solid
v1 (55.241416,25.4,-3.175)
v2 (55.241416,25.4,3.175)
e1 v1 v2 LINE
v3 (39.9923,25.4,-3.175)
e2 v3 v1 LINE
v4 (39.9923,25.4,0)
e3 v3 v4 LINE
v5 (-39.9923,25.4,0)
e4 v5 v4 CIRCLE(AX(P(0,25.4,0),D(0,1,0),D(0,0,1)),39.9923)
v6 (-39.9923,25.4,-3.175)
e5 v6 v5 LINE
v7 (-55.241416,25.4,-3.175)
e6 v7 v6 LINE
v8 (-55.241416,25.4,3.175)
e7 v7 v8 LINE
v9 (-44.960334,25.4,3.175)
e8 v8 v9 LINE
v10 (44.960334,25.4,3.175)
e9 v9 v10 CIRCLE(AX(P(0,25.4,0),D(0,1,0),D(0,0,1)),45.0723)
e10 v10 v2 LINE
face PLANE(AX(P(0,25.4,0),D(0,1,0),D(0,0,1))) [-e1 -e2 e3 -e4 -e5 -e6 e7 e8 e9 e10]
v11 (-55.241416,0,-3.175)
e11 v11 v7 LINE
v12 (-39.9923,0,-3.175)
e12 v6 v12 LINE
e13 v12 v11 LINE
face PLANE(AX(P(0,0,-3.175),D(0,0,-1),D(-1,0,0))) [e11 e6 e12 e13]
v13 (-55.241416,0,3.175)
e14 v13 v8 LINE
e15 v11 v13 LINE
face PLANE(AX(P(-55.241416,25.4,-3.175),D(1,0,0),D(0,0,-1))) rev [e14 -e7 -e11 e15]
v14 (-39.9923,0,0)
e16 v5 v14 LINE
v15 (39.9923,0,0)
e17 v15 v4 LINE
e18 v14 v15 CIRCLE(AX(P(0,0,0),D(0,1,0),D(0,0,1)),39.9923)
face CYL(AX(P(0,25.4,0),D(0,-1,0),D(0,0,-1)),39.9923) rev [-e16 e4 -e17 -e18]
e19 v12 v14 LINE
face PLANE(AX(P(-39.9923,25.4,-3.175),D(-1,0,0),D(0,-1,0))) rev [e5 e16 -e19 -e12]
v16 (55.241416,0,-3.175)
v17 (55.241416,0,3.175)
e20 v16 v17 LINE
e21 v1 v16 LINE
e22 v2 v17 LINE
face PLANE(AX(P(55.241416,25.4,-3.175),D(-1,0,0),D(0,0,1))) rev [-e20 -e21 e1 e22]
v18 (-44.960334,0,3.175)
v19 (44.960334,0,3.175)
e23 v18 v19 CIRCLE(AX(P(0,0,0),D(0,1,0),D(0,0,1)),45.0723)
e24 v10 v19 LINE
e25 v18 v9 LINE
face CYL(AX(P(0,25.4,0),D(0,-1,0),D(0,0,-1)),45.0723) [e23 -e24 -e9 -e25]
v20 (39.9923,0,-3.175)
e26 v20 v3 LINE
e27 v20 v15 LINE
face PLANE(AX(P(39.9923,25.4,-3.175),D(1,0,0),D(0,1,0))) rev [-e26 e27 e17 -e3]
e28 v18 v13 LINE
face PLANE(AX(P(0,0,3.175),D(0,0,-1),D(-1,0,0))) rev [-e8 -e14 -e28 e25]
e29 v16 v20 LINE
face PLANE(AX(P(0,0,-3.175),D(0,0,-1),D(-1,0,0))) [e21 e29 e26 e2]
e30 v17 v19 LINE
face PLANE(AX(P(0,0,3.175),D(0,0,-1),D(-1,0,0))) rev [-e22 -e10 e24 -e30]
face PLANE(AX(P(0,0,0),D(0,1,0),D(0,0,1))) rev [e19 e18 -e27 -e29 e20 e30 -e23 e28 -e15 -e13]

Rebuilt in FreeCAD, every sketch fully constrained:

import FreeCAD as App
import Part
import Sketcher

V = App.Vector
Q = App.Units.Quantity

doc = App.newDocument("Part")
params = doc.addObject("Spreadsheet::Sheet", "Params")
for row, (alias, value) in enumerate([
    ("sketch1_diameter", "3.549 in"),
    ("sketch1_diameter2", "3.149 in"),
    ("pad1_length", "1 in"),
    ("sketch2_height", "1 in"),
    ("sketch2_width", "3.549 in"),
    ("sketch3_height", "1 in"),
    ("pad2_length", "0.25 in"),
], start=1):
    params.set(f"A{row}", alias)
    params.set(f"B{row}", "=" + value)
    params.setAlias(f"B{row}", alias)

body = doc.addObject("PartDesign::Body", "Body")

sketch1 = body.newObject("Sketcher::SketchObject", "Sketch")
sketch1.AttachmentSupport = (doc.getObject("XZ_Plane"), [""])
sketch1.MapMode = "FlatFace"
sketch1.addGeometry([
    Part.Circle(V(0, 0, 0), V(0, 0, 1), 45.0723),
    Part.Circle(V(0, 0, 0), V(0, 0, 1), 39.9923),
], False)
sketch1.addConstraint([
    Sketcher.Constraint("Coincident", 0, 3, -1, 1),
    Sketcher.Constraint("Coincident", 1, 3, -1, 1),
    Sketcher.Constraint("Diameter", 0, Q("3.549 in")),
    Sketcher.Constraint("Diameter", 1, Q("3.149 in")),
])
sketch1.setExpression("Constraints[2]", "Params.sketch1_diameter")
sketch1.setExpression("Constraints[3]", "Params.sketch1_diameter2")
pad1 = body.newObject("PartDesign::Pad", "Pad")
pad1.Profile = sketch1
pad1.setExpression("Length", "Params.pad1_length")
pad1.Reversed = True

sketch2 = body.newObject("Sketcher::SketchObject", "Sketch001")
sketch2.AttachmentSupport = (doc.getObject("XY_Plane"), [""])
sketch2.MapMode = "FlatFace"
sketch2.addGeometry([
    Part.LineSegment(V(-45.0723, 25.4, 0), V(-45.0723, 0, 0)),
    Part.LineSegment(V(-45.0723, 0, 0), V(45.0723, 0, 0)),
    Part.LineSegment(V(45.0723, 0, 0), V(45.0723, 25.4, 0)),
    Part.LineSegment(V(45.0723, 25.4, 0), V(-45.0723, 25.4, 0)),
], False)
sketch2.addConstraint([
    Sketcher.Constraint("Coincident", 0, 2, 1, 1),
    Sketcher.Constraint("Coincident", 1, 2, 2, 1),
    Sketcher.Constraint("Coincident", 2, 2, 3, 1),
    Sketcher.Constraint("Coincident", 3, 2, 0, 1),
    Sketcher.Constraint("Vertical", 0),
    Sketcher.Constraint("Horizontal", 1),
    Sketcher.Constraint("Vertical", 2),
    Sketcher.Constraint("Horizontal", 3),
    Sketcher.Constraint("Symmetric", 0, 2, 1, 2, -1, 1),
    Sketcher.Constraint("DistanceY", 0, 2, 0, 1, Q("1 in")),
    Sketcher.Constraint("DistanceX", 1, 1, 1, 2, Q("3.549 in")),
])
sketch2.setExpression("Constraints[9]", "Params.sketch2_height")
sketch2.setExpression("Constraints[10]", "Params.sketch2_width")
pocket1 = body.newObject("PartDesign::Pocket", "Pocket")
pocket1.Profile = sketch2
pocket1.Type = "ThroughAll"

sketch3 = body.newObject("Sketcher::SketchObject", "Sketch002")
sketch3.AttachmentSupport = (doc.getObject("XY_Plane"), [""])
sketch3.MapMode = "FlatFace"
sketch3.addGeometry([
    Part.LineSegment(V(39.9923, 25.4, 0), V(55.241416, 25.4, 0)),
    Part.LineSegment(V(55.241416, 25.4, 0), V(55.241416, 0, 0)),
    Part.LineSegment(V(55.241416, 0, 0), V(39.9923, 0, 0)),
    Part.LineSegment(V(39.9923, 0, 0), V(39.9923, 25.4, 0)),
    Part.LineSegment(V(-55.241416, 25.4, 0), V(-39.9923, 25.4, 0)),
    Part.LineSegment(V(-39.9923, 25.4, 0), V(-39.9923, 0, 0)),
    Part.LineSegment(V(-39.9923, 0, 0), V(-55.241416, 0, 0)),
    Part.LineSegment(V(-55.241416, 0, 0), V(-55.241416, 25.4, 0)),
], False)
sketch3.addConstraint([
    Sketcher.Constraint("Coincident", 0, 2, 1, 1),
    Sketcher.Constraint("Coincident", 1, 2, 2, 1),
    Sketcher.Constraint("Coincident", 2, 2, 3, 1),
    Sketcher.Constraint("Coincident", 3, 2, 0, 1),
    Sketcher.Constraint("Coincident", 4, 2, 5, 1),
    Sketcher.Constraint("Coincident", 5, 2, 6, 1),
    Sketcher.Constraint("Coincident", 6, 2, 7, 1),
    Sketcher.Constraint("Coincident", 7, 2, 4, 1),
    Sketcher.Constraint("Horizontal", 0),
    Sketcher.Constraint("Vertical", 1),
    Sketcher.Constraint("Horizontal", 2),
    Sketcher.Constraint("Vertical", 3),
    Sketcher.Constraint("Horizontal", 4),
    Sketcher.Constraint("Vertical", 5),
    Sketcher.Constraint("Horizontal", 6),
    Sketcher.Constraint("Vertical", 7),
    Sketcher.Constraint("Symmetric", 2, 2, 5, 2, -1, 1),
    Sketcher.Constraint("Symmetric", 1, 2, 6, 2, -2),
    Sketcher.Constraint("Horizontal", 3, 2, 4, 2),
    Sketcher.Constraint("DistanceY", 1, 2, 1, 1, Q("1 in")),
    Sketcher.Constraint("DistanceX", 4, 2, 3, 2, Q("3.149 in")),
    Sketcher.Constraint("DistanceX", 0, 1, 0, 2, 15.249116),
])
sketch3.setExpression("Constraints[19]", "Params.sketch3_height")
pad2 = body.newObject("PartDesign::Pad", "Pad001")
pad2.Profile = sketch3
pad2.setExpression("Length", "Params.pad2_length")
pad2.Midplane = True

doc.recompute()
